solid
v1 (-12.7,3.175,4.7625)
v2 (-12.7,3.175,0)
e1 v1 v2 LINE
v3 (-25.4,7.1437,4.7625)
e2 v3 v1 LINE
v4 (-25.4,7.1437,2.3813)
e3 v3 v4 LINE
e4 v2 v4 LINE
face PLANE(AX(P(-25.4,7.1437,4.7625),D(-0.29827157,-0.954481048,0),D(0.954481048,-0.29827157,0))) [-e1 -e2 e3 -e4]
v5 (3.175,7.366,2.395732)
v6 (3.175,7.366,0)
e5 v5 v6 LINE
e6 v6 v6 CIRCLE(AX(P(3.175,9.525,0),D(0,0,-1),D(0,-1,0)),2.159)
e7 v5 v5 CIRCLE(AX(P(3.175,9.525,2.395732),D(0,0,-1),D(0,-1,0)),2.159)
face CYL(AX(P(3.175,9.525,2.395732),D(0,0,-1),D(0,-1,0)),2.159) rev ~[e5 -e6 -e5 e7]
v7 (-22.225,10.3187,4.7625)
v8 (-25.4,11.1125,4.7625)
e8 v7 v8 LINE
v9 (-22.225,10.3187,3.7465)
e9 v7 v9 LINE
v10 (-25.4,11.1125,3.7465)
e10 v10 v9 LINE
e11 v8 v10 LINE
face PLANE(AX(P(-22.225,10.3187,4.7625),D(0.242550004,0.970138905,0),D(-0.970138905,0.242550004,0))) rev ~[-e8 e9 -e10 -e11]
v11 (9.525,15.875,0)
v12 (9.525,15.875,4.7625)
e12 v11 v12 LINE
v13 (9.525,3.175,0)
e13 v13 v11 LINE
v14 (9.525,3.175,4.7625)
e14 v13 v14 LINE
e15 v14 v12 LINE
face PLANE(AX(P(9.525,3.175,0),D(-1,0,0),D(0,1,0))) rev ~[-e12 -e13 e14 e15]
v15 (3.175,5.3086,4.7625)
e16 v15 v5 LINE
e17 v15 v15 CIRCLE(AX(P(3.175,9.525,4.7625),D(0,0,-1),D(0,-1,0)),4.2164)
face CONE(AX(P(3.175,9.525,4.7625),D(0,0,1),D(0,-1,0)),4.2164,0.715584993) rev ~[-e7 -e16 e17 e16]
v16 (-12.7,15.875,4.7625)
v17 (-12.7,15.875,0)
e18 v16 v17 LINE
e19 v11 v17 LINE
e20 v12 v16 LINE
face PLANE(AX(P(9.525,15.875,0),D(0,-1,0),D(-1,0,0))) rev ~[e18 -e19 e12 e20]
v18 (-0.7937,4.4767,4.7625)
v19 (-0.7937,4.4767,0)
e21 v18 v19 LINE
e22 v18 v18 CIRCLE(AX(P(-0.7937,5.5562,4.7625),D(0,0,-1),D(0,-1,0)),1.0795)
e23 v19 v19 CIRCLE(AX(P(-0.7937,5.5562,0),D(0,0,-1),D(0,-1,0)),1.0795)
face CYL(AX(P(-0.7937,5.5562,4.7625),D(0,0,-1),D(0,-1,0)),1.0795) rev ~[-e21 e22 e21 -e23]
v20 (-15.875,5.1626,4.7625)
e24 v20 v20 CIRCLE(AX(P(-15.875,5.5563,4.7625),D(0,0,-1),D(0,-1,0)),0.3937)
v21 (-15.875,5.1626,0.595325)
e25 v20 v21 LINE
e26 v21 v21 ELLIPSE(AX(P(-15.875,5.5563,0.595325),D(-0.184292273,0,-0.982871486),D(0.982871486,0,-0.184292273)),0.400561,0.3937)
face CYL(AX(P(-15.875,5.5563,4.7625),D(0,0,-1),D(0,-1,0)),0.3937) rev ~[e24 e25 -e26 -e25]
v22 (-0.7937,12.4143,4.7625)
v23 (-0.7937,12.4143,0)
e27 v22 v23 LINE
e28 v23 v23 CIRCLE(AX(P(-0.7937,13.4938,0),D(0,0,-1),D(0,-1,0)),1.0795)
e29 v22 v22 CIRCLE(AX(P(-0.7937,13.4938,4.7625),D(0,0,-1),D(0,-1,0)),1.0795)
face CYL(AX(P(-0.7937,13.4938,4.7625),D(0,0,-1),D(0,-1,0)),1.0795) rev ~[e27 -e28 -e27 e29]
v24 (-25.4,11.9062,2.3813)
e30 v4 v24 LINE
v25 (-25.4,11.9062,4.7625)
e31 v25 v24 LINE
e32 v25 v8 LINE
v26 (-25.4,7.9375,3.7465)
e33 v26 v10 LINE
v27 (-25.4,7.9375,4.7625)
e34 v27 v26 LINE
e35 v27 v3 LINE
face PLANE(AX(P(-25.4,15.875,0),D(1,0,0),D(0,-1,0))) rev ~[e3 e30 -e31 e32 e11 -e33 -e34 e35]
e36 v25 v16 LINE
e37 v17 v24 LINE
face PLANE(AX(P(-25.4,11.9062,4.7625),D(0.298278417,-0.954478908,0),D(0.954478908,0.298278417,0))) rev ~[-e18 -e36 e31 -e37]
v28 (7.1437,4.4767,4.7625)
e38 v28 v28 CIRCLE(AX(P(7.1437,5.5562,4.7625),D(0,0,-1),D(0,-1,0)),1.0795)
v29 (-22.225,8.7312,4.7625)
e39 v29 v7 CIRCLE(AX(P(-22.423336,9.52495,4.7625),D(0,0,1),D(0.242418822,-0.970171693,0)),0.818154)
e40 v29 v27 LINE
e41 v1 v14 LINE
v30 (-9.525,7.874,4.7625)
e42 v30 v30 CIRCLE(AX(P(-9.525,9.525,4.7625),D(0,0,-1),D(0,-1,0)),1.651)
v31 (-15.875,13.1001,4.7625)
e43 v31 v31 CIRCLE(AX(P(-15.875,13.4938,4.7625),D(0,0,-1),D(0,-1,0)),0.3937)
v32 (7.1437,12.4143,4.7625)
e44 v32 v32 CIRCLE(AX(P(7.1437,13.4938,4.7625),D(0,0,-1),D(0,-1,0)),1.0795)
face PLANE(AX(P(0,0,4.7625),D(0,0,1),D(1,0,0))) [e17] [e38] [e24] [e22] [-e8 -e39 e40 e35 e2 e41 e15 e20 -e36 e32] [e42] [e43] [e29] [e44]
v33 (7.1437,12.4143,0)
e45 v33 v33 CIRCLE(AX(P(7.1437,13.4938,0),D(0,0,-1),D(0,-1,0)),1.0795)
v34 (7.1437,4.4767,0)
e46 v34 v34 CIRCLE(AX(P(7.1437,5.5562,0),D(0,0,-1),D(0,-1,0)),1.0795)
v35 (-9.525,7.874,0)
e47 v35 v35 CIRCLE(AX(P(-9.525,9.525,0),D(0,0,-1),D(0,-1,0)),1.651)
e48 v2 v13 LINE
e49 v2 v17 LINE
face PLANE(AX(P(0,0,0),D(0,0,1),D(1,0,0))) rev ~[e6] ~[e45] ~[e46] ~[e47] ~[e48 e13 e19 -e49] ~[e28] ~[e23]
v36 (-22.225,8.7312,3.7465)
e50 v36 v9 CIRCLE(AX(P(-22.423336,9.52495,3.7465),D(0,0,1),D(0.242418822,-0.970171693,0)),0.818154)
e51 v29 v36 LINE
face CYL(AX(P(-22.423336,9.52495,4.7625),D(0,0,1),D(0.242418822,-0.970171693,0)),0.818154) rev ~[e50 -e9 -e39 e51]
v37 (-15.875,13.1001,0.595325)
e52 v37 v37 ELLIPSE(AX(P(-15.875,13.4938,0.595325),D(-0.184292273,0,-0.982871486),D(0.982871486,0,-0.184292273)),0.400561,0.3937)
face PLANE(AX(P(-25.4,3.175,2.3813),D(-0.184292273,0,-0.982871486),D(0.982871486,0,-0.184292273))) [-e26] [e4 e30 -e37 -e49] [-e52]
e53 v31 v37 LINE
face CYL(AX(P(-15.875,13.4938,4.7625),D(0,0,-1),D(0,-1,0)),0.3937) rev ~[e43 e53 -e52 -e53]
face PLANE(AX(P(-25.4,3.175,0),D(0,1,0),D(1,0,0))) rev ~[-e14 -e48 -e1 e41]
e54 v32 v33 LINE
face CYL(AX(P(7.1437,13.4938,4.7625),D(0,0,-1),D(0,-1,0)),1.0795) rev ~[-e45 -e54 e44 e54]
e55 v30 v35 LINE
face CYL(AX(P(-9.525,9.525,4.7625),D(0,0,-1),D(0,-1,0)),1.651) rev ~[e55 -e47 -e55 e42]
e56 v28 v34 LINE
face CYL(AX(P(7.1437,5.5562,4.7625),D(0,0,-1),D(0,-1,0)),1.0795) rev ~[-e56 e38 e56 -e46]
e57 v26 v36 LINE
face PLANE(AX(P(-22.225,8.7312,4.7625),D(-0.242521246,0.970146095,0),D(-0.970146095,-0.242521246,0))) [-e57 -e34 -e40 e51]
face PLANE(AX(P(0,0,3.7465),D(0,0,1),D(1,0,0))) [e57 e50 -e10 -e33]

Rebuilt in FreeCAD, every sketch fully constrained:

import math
import FreeCAD as App
import Part
import Sketcher

V = App.Vector
Q = App.Units.Quantity

doc = App.newDocument("Part")
body = doc.addObject("PartDesign::Body", "Body")

# Sketch on XY plane
sketch1 = body.newObject("Sketcher::SketchObject", "Sketch")
sketch1.AttachmentSupport = (doc.getObject("XY_Plane"), [""])
sketch1.MapMode = "FlatFace"
sketch1.addGeometry([
    Part.LineSegment(V(9.525, 15.875, 0), V(-25.4, 15.875, 0)),
    Part.LineSegment(V(-25.4, 15.875, 0), V(-25.4, 3.175, 0)),
    Part.LineSegment(V(-25.4, 3.175, 0), V(9.525, 3.175, 0)),
    Part.LineSegment(V(9.525, 3.175, 0), V(9.525, 15.875, 0)),
], False)
sketch1.addConstraint([
    Sketcher.Constraint("Coincident", 0, 2, 1, 1),
    Sketcher.Constraint("Coincident", 1, 2, 2, 1),
    Sketcher.Constraint("Coincident", 2, 2, 3, 1),
    Sketcher.Constraint("Coincident", 3, 2, 0, 1),
    Sketcher.Constraint("Horizontal", 0),
    Sketcher.Constraint("Vertical", 1),
    Sketcher.Constraint("Horizontal", 2),
    Sketcher.Constraint("Vertical", 3),
    Sketcher.Constraint("DistanceY", 1, 2, 1, 1, Q("0.5 in")),
    Sketcher.Constraint("DistanceX", 0, 2, 0, 1, Q("1.375 in")),
    Sketcher.Constraint("DistanceX", 0, 2, -1, 1, Q("1 in")),
    Sketcher.Constraint("DistanceY", -1, 1, 0, 2, Q("0.625 in")),
])
pad1 = body.newObject("PartDesign::Pad", "Pad")
pad1.Profile = sketch1
pad1.Length = Q("0.1875 in")

# Sketch on XY plane
sketch2 = body.newObject("Sketcher::SketchObject", "Sketch001")
sketch2.AttachmentSupport = (doc.getObject("XY_Plane"), [""])
sketch2.MapMode = "FlatFace"
sketch2.AttachmentOffset = App.Placement(V(0, 0, 0.1875 * 25.4), App.Rotation())
sketch2.addGeometry(Part.Circle(V(3.175, 9.525, 0), V(0, 0, 1), 2.159), False)
sketch2.addConstraint([
    Sketcher.Constraint("Diameter", 0, Q("0.17 in")),
    Sketcher.Constraint("DistanceX", -1, 1, 0, 3, Q("0.125 in")),
    Sketcher.Constraint("DistanceY", -1, 1, 0, 3, Q("0.375 in")),
])
doc.recompute()
hole = body.newObject("PartDesign::Hole", "Hole")
hole.Profile = sketch2
hole.ThreadType = "None"
hole.Diameter = Q("0.17 in")
hole.DepthType = "ThroughAll"
hole.HoleCutType = "Countersink"
hole.HoleCutDiameter = Q("0.332 in")
hole.HoleCutCountersinkAngle = 82

# Sketch on XY plane
sketch3 = body.newObject("Sketcher::SketchObject", "Sketch002")
sketch3.AttachmentSupport = (doc.getObject("XY_Plane"), [""])
sketch3.MapMode = "FlatFace"
sketch3.AttachmentOffset = App.Placement(V(0, 0, 0.1875 * 25.4), App.Rotation())
sketch3.addGeometry(Part.Circle(V(-9.525, 9.525, 0), V(0, 0, 1), 1.651), False)
sketch3.addConstraint([
    Sketcher.Constraint("Diameter", 0, Q("0.13 in")),
    Sketcher.Constraint("DistanceX", 0, 3, -1, 1, Q("0.375 in")),
    Sketcher.Constraint("DistanceY", -1, 1, 0, 3, Q("0.375 in")),
])
doc.recompute()
hole2 = body.newObject("PartDesign::Hole", "Hole001")
hole2.Profile = sketch3
hole2.ThreadType = "None"
hole2.Diameter = Q("0.13 in")
hole2.DepthType = "ThroughAll"

# Sketch on XY plane
sketch4 = body.newObject("Sketcher::SketchObject", "Sketch003")
sketch4.AttachmentSupport = (doc.getObject("XY_Plane"), [""])
sketch4.MapMode = "FlatFace"
sketch4.AttachmentOffset = App.Placement(V(0, 0, 0.1875 * 25.4), App.Rotation())
sketch4.addGeometry([
    Part.LineSegment(V(-25.4, 11.1125, 0), V(-25.4, 7.9375, 0)),
    Part.LineSegment(V(-25.4, 7.9375, 0), V(-22.225, 7.9375, 0)),
    Part.LineSegment(V(-22.225, 7.9375, 0), V(-22.225, 11.1125, 0)),
    Part.LineSegment(V(-22.225, 11.1125, 0), V(-25.4, 11.1125, 0)),
], False)
sketch4.addConstraint([
    Sketcher.Constraint("Coincident", 0, 2, 1, 1),
    Sketcher.Constraint("Coincident", 1, 2, 2, 1),
    Sketcher.Constraint("Coincident", 2, 2, 3, 1),
    Sketcher.Constraint("Coincident", 3, 2, 0, 1),
    Sketcher.Constraint("Vertical", 0),
    Sketcher.Constraint("Horizontal", 1),
    Sketcher.Constraint("Vertical", 2),
    Sketcher.Constraint("Horizontal", 3),
    Sketcher.Constraint("Equal", 3, 0),
    Sketcher.Constraint("DistanceX", 1, 1, 1, 2, Q("0.125 in")),
    Sketcher.Constraint("DistanceX", 0, 2, -1, 1, Q("1 in")),
    Sketcher.Constraint("DistanceY", -1, 1, 0, 2, Q("0.3125 in")),
])
pocket1 = body.newObject("PartDesign::Pocket", "Pocket")
pocket1.Profile = sketch4
pocket1.Length = Q("0.04 in")

# Sketch on XZ plane
sketch5 = body.newObject("Sketcher::SketchObject", "Sketch004")
sketch5.AttachmentSupport = (doc.getObject("XZ_Plane"), [""])
sketch5.MapMode = "FlatFace"
sketch5.AttachmentOffset = App.Placement(V(0, 0, -0.125 * 25.4), App.Rotation())
sketch5.addGeometry([
    Part.LineSegment(V(-25.4, 2.3813, 0), V(-25.4, 0, 0)),
    Part.LineSegment(V(-25.4, 0, 0), V(-12.7, 0, 0)),
    Part.LineSegment(V(-12.7, 0, 0), V(-25.4, 2.3813, 0)),
], False)
sketch5.addConstraint([
    Sketcher.Constraint("Coincident", 0, 2, 1, 1),
    Sketcher.Constraint("Coincident", 1, 2, 2, 1),
    Sketcher.Constraint("Coincident", 2, 2, 0, 1),
    Sketcher.Constraint("Vertical", 0),
    Sketcher.Constraint("Horizontal", 1),
    Sketcher.Constraint("PointOnObject", 0, 2, -1),
    Sketcher.Constraint("DistanceX", 1, 1, 1, 2, Q("0.5 in")),
    Sketcher.Constraint("DistanceX", 1, 2, -1, 1, Q("0.5 in")),
    Sketcher.Constraint("DistanceY", 0, 2, 0, 1, Q("0.093752 in")),
])
pocket2 = body.newObject("PartDesign::Pocket", "Pocket001")
pocket2.Profile = sketch5
pocket2.Type = "ThroughAll"

# Sketch on XY plane
sketch6 = body.newObject("Sketcher::SketchObject", "Sketch005")
sketch6.AttachmentSupport = (doc.getObject("XY_Plane"), [""])
sketch6.MapMode = "FlatFace"
sketch6.AttachmentOffset = App.Placement(V(0, 0, 0.1875 * 25.4), App.Rotation())
sketch6.addGeometry(Part.Circle(V(-15.875, 13.4938, 0), V(0, 0, 1), 0.3937), False)
sketch6.addConstraint([
    Sketcher.Constraint("Diameter", 0, Q("0.031 in")),
    Sketcher.Constraint("DistanceX", 0, 3, -1, 1, Q("0.625 in")),
    Sketcher.Constraint("DistanceY", -1, 1, 0, 3, Q("0.531252 in")),
])
doc.recompute()
hole3 = body.newObject("PartDesign::Hole", "Hole002")
hole3.Profile = sketch6
hole3.ThreadType = "None"
hole3.Diameter = Q("0.031 in")
hole3.DepthType = "ThroughAll"

# Sketch on XY plane
sketch7 = body.newObject("Sketcher::SketchObject", "Sketch006")
sketch7.AttachmentSupport = (doc.getObject("XY_Plane"), [""])
sketch7.MapMode = "FlatFace"
sketch7.AttachmentOffset = App.Placement(V(0, 0, 0.1875 * 25.4), App.Rotation())
sketch7.addGeometry(Part.Circle(V(-15.875, 5.5563, 0), V(0, 0, 1), 0.3937), False)
sketch7.addConstraint([
    Sketcher.Constraint("Diameter", 0, Q("0.031 in")),
    Sketcher.Constraint("DistanceX", 0, 3, -1, 1, Q("0.625 in")),
    Sketcher.Constraint("DistanceY", -1, 1, 0, 3, Q("0.218752 in")),
])
doc.recompute()
hole4 = body.newObject("PartDesign::Hole", "Hole003")
hole4.Profile = sketch7
hole4.ThreadType = "None"
hole4.Diameter = Q("0.031 in")
hole4.DepthType = "ThroughAll"

# Sketch on XY plane
sketch8 = body.newObject("Sketcher::SketchObject", "Sketch007")
sketch8.AttachmentSupport = (doc.getObject("XY_Plane"), [""])
sketch8.MapMode = "FlatFace"
sketch8.AttachmentOffset = App.Placement(V(0, 0, 0.1875 * 25.4), App.Rotation())
sketch8.addGeometry([
    Part.LineSegment(V(-22.225, 11.1125, 0), V(-25.4, 11.1125, 0)),
    Part.LineSegment(V(-25.4, 11.1125, 0), V(-22.225, 10.3187, 0)),
    Part.LineSegment(V(-22.225, 10.3187, 0), V(-22.225, 11.1125, 0)),
], False)
sketch8.addConstraint([
    Sketcher.Constraint("Coincident", 0, 2, 1, 1),
    Sketcher.Constraint("Coincident", 1, 2, 2, 1),
    Sketcher.Constraint("Coincident", 2, 2, 0, 1),
    Sketcher.Constraint("Horizontal", 0),
    Sketcher.Constraint("Vertical", 2),
    Sketcher.Constraint("DistanceY", 2, 1, 2, 2, Q("0.031252 in")),
    Sketcher.Constraint("DistanceX", 0, 2, -1, 1, Q("1 in")),
    Sketcher.Constraint("DistanceX", 0, 2, 0, 1, Q("0.125 in")),
    Sketcher.Constraint("DistanceY", -1, 1, 0, 2, Q("0.4375 in")),
])
pad2 = body.newObject("PartDesign::Pad", "Pad001")
pad2.Profile = sketch8
pad2.Type = "UpToFirst"
pad2.Reversed = True

# Sketch on XY plane
sketch9 = body.newObject("Sketcher::SketchObject", "Sketch008")
sketch9.AttachmentSupport = (doc.getObject("XY_Plane"), [""])
sketch9.MapMode = "FlatFace"
sketch9.AttachmentOffset = App.Placement(V(0, 0, 0.1875 * 25.4), App.Rotation())
sketch9.addGeometry([
    Part.LineSegment(V(-22.225, 7.9375, 0), V(-22.225, 8.7312, 0)),
    Part.LineSegment(V(-22.225, 8.7312, 0), V(-25.4, 7.9375, 0)),
    Part.LineSegment(V(-25.4, 7.9375, 0), V(-22.225, 7.9375, 0)),
], False)
sketch9.addConstraint([
    Sketcher.Constraint("Coincident", 0, 2, 1, 1),
    Sketcher.Constraint("Coincident", 1, 2, 2, 1),
    Sketcher.Constraint("Coincident", 2, 2, 0, 1),
    Sketcher.Constraint("Vertical", 0),
    Sketcher.Constraint("Horizontal", 2),
    Sketcher.Constraint("DistanceY", 0, 1, 0, 2, Q("0.031248 in")),
    Sketcher.Constraint("DistanceX", 1, 2, -1, 1, Q("1 in")),
    Sketcher.Constraint("DistanceX", 2, 1, 2, 2, Q("0.125 in")),
    Sketcher.Constraint("DistanceY", -1, 1, 0, 2, Q("0.343748 in")),
])
pad3 = body.newObject("PartDesign::Pad", "Pad002")
pad3.Profile = sketch9
pad3.Type = "UpToFirst"
pad3.Reversed = True

# Sketch on XY plane
sketch10 = body.newObject("Sketcher::SketchObject", "Sketch009")
sketch10.AttachmentSupport = (doc.getObject("XY_Plane"), [""])
sketch10.MapMode = "FlatFace"
sketch10.AttachmentOffset = App.Placement(V(0, 0, 0.1875 * 25.4), App.Rotation())
sketch10.addGeometry([
    Part.LineSegment(V(-12.7, 15.875, 0), V(-25.4, 15.875, 0)),
    Part.LineSegment(V(-25.4, 15.875, 0), V(-25.4, 11.9062, 0)),
    Part.LineSegment(V(-25.4, 11.9062, 0), V(-12.7, 15.875, 0)),
], False)
sketch10.addConstraint([
    Sketcher.Constraint("Coincident", 0, 2, 1, 1),
    Sketcher.Constraint("Coincident", 1, 2, 2, 1),
    Sketcher.Constraint("Coincident", 2, 2, 0, 1),
    Sketcher.Constraint("Horizontal", 0),
    Sketcher.Constraint("Vertical", 1),
    Sketcher.Constraint("DistanceX", 0, 2, 0, 1, Q("0.5 in")),
    Sketcher.Constraint("DistanceX", 2, 2, -1, 1, Q("0.5 in")),
    Sketcher.Constraint("DistanceY", 1, 2, 1, 1, Q("0.156252 in")),
    Sketcher.Constraint("DistanceY", -1, 1, 0, 2, Q("0.625 in")),
])
pocket3 = body.newObject("PartDesign::Pocket", "Pocket002")
pocket3.Profile = sketch10
pocket3.Type = "ThroughAll"

# Sketch on XY plane
sketch11 = body.newObject("Sketcher::SketchObject", "Sketch010")
sketch11.AttachmentSupport = (doc.getObject("XY_Plane"), [""])
sketch11.MapMode = "FlatFace"
sketch11.AttachmentOffset = App.Placement(V(0, 0, 0.1875 * 25.4), App.Rotation())
sketch11.addGeometry([
    Part.LineSegment(V(-25.4, 7.1437, 0), V(-25.4, 3.175, 0)),
    Part.LineSegment(V(-25.4, 3.175, 0), V(-12.7, 3.175, 0)),
    Part.LineSegment(V(-12.7, 3.175, 0), V(-25.4, 7.1437, 0)),
], False)
sketch11.addConstraint([
    Sketcher.Constraint("Coincident", 0, 2, 1, 1),
    Sketcher.Constraint("Coincident", 1, 2, 2, 1),
    Sketcher.Constraint("Coincident", 2, 2, 0, 1),
    Sketcher.Constraint("Vertical", 0),
    Sketcher.Constraint("Horizontal", 1),
    Sketcher.Constraint("DistanceX", 1, 1, 1, 2, Q("0.5 in")),
    Sketcher.Constraint("DistanceX", 1, 2, -1, 1, Q("0.5 in")),
    Sketcher.Constraint("DistanceY", 0, 2, 0, 1, Q("0.156248 in")),
    Sketcher.Constraint("DistanceY", -1, 1, 0, 2, Q("0.125 in")),
])
pocket4 = body.newObject("PartDesign::Pocket", "Pocket003")
pocket4.Profile = sketch11
pocket4.Type = "ThroughAll"

# Sketch on XY plane
sketch12 = body.newObject("Sketcher::SketchObject", "Sketch011")
sketch12.AttachmentSupport = (doc.getObject("XY_Plane"), [""])
sketch12.MapMode = "FlatFace"
sketch12.AttachmentOffset = App.Placement(V(0, 0, 0.1875 * 25.4), App.Rotation())
sketch12.addGeometry(Part.Circle(V(-0.7937, 13.4938, 0), V(0, 0, 1), 1.0795), False)
sketch12.addConstraint([
    Sketcher.Constraint("Diameter", 0, Q("0.085 in")),
    Sketcher.Constraint("DistanceX", 0, 3, -1, 1, Q("0.031248 in")),
    Sketcher.Constraint("DistanceY", -1, 1, 0, 3, Q("0.531252 in")),
])
doc.recompute()
hole5 = body.newObject("PartDesign::Hole", "Hole004")
hole5.Profile = sketch12
hole5.ThreadType = "None"
hole5.Diameter = Q("0.085 in")
hole5.DepthType = "ThroughAll"

# Sketch on XY plane
sketch13 = body.newObject("Sketcher::SketchObject", "Sketch012")
sketch13.AttachmentSupport = (doc.getObject("XY_Plane"), [""])
sketch13.MapMode = "FlatFace"
sketch13.AttachmentOffset = App.Placement(V(0, 0, 0.1875 * 25.4), App.Rotation())
sketch13.addGeometry(Part.Circle(V(-0.7937, 5.5562, 0), V(0, 0, 1), 1.0795), False)
sketch13.addConstraint([
    Sketcher.Constraint("Diameter", 0, Q("0.085 in")),
    Sketcher.Constraint("DistanceX", 0, 3, -1, 1, Q("0.031248 in")),
    Sketcher.Constraint("DistanceY", -1, 1, 0, 3, Q("0.218748 in")),
])
doc.recompute()
hole6 = body.newObject("PartDesign::Hole", "Hole005")
hole6.Profile = sketch13
hole6.ThreadType = "None"
hole6.Diameter = Q("0.085 in")
hole6.DepthType = "ThroughAll"

# Sketch on XY plane
sketch14 = body.newObject("Sketcher::SketchObject", "Sketch013")
sketch14.AttachmentSupport = (doc.getObject("XY_Plane"), [""])
sketch14.MapMode = "FlatFace"
sketch14.AttachmentOffset = App.Placement(V(0, 0, 0.1875 * 25.4), App.Rotation())
sketch14.addGeometry(Part.Circle(V(7.1437, 13.4938, 0), V(0, 0, 1), 1.0795), False)
sketch14.addConstraint([
    Sketcher.Constraint("Diameter", 0, Q("0.085 in")),
    Sketcher.Constraint("DistanceX", -1, 1, 0, 3, Q("0.281248 in")),
    Sketcher.Constraint("DistanceY", -1, 1, 0, 3, Q("0.531252 in")),
])
doc.recompute()
hole7 = body.newObject("PartDesign::Hole", "Hole006")
hole7.Profile = sketch14
hole7.ThreadType = "None"
hole7.Diameter = Q("0.085 in")
hole7.DepthType = "ThroughAll"

# Sketch on XY plane
sketch15 = body.newObject("Sketcher::SketchObject", "Sketch014")
sketch15.AttachmentSupport = (doc.getObject("XY_Plane"), [""])
sketch15.MapMode = "FlatFace"
sketch15.AttachmentOffset = App.Placement(V(0, 0, 0.1875 * 25.4), App.Rotation())
sketch15.addGeometry(Part.Circle(V(7.1437, 5.5562, 0), V(0, 0, 1), 1.0795), False)
sketch15.addConstraint([
    Sketcher.Constraint("Diameter", 0, Q("0.085 in")),
    Sketcher.Constraint("DistanceX", -1, 1, 0, 3, Q("0.281248 in")),
    Sketcher.Constraint("DistanceY", -1, 1, 0, 3, Q("0.218748 in")),
])
doc.recompute()
hole8 = body.newObject("PartDesign::Hole", "Hole007")
hole8.Profile = sketch15
hole8.ThreadType = "None"
hole8.Diameter = Q("0.085 in")
hole8.DepthType = "ThroughAll"

# Sketch on XY plane
sketch16 = body.newObject("Sketcher::SketchObject", "Sketch015")
sketch16.AttachmentSupport = (doc.getObject("XY_Plane"), [""])
sketch16.MapMode = "FlatFace"
sketch16.AttachmentOffset = App.Placement(V(0, 0, 0.1875 * 25.4), App.Rotation())
sketch16.addGeometry([
    Part.LineSegment(V(-22.225, 10.3187, 0), V(-22.225, 8.7312, 0)),
    Part.ArcOfCircle(Part.Circle(V(-22.4234, 9.525, 0), V(0, 0, 1), 0.818218), math.radians(-75.967153), math.radians(75.965455)),
], False)
sketch16.addConstraint([
    Sketcher.Constraint("Coincident", 0, 1, 1, 2),
    Sketcher.Constraint("Coincident", 1, 1, 0, 2),
    Sketcher.Constraint("Vertical", 0),
    Sketcher.Constraint("DistanceY", 0, 2, 0, 1, Q("0.0625 in")),
    Sketcher.Constraint("Radius", 1, Q("0.8182 mm")),
    Sketcher.Constraint("DistanceY", -1, 1, 1, 3, Q("0.375 in")),
    Sketcher.Constraint("DistanceX", 0, 1, -1, 1, Q("0.875 in")),
])
pocket5 = body.newObject("PartDesign::Pocket", "Pocket004")
pocket5.Profile = sketch16
pocket5.Length = Q("0.04 in")

doc.recompute()
